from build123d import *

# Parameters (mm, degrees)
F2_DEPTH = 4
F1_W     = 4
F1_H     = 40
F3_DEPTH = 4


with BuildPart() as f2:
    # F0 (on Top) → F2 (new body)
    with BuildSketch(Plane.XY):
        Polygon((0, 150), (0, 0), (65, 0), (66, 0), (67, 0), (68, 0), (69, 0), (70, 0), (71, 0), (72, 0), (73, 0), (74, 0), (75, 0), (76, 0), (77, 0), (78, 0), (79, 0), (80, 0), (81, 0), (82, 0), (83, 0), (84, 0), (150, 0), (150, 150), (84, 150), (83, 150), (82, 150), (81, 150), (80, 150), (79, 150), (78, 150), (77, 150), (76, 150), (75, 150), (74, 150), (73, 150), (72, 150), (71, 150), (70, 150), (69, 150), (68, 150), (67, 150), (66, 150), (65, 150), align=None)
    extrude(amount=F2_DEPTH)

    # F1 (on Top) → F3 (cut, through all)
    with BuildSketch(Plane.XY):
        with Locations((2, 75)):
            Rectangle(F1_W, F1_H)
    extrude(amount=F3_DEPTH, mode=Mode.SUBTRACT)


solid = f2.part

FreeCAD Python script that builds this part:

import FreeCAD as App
import Part
import Sketcher
Q = App.Units.Quantity

doc = App.newDocument("Part")
body = doc.addObject("PartDesign::Body", "Body")

sketch1 = doc.addObject("Sketcher::SketchObject", "Sketch")
body.addObject(sketch1)
sketch1.AttachmentSupport = (doc.XY_Plane, [""])
sketch1.MapMode = "FlatFace"
sketch1.addGeometry([
    Part.LineSegment(App.Vector(0, 150, 0), App.Vector(0, 0, 0)),
    Part.LineSegment(App.Vector(0, 0, 0), App.Vector(150, 0, 0)),
    Part.LineSegment(App.Vector(150, 0, 0), App.Vector(150, 150, 0)),
    Part.LineSegment(App.Vector(150, 150, 0), App.Vector(0, 150, 0)),
], False)
sketch1.addConstraint([
    Sketcher.Constraint("Coincident", 0, 2, 1, 1),
    Sketcher.Constraint("Coincident", 1, 2, 2, 1),
    Sketcher.Constraint("Coincident", 2, 2, 3, 1),
    Sketcher.Constraint("Coincident", 3, 2, 0, 1),
    Sketcher.Constraint("Vertical", 0),
    Sketcher.Constraint("Horizontal", 1),
    Sketcher.Constraint("Vertical", 2),
    Sketcher.Constraint("Horizontal", 3),
    Sketcher.Constraint("Coincident", 0, 2, -1, 1),
    Sketcher.Constraint("Equal", 3, 0),
    Sketcher.Constraint("DistanceX", 1, 1, 1, 2, Q("150 mm")),
])
pad1 = doc.addObject("PartDesign::Pad", "Pad")
body.addObject(pad1)
pad1.Profile = sketch1
pad1.Length = 4

sketch2 = doc.addObject("Sketcher::SketchObject", "Sketch001")
body.addObject(sketch2)
sketch2.AttachmentSupport = (doc.XY_Plane, [""])
sketch2.MapMode = "FlatFace"
sketch2.addGeometry([
    Part.LineSegment(App.Vector(0, 95, 0), App.Vector(0, 55, 0)),
    Part.LineSegment(App.Vector(0, 55, 0), App.Vector(4, 55, 0)),
    Part.LineSegment(App.Vector(4, 55, 0), App.Vector(4, 95, 0)),
    Part.LineSegment(App.Vector(4, 95, 0), App.Vector(0, 95, 0)),
], False)
sketch2.addConstraint([
    Sketcher.Constraint("Coincident", 0, 2, 1, 1),
    Sketcher.Constraint("Coincident", 1, 2, 2, 1),
    Sketcher.Constraint("Coincident", 2, 2, 3, 1),
    Sketcher.Constraint("Coincident", 3, 2, 0, 1),
    Sketcher.Constraint("Vertical", 0),
    Sketcher.Constraint("Horizontal", 1),
    Sketcher.Constraint("Vertical", 2),
    Sketcher.Constraint("Horizontal", 3),
    Sketcher.Constraint("PointOnObject", 0, 2, -2),
    Sketcher.Constraint("DistanceX", 1, 1, 1, 2, Q("4 mm")),
    Sketcher.Constraint("DistanceY", 0, 2, 0, 1, Q("40 mm")),
    Sketcher.Constraint("DistanceY", -1, 1, 0, 2, Q("55 mm")),
])
pocket1 = doc.addObject("PartDesign::Pocket", "Pocket")
body.addObject(pocket1)
pocket1.Profile = sketch2
pocket1.Type = "ThroughAll"
pocket1.Reversed = True

doc.recompute()
